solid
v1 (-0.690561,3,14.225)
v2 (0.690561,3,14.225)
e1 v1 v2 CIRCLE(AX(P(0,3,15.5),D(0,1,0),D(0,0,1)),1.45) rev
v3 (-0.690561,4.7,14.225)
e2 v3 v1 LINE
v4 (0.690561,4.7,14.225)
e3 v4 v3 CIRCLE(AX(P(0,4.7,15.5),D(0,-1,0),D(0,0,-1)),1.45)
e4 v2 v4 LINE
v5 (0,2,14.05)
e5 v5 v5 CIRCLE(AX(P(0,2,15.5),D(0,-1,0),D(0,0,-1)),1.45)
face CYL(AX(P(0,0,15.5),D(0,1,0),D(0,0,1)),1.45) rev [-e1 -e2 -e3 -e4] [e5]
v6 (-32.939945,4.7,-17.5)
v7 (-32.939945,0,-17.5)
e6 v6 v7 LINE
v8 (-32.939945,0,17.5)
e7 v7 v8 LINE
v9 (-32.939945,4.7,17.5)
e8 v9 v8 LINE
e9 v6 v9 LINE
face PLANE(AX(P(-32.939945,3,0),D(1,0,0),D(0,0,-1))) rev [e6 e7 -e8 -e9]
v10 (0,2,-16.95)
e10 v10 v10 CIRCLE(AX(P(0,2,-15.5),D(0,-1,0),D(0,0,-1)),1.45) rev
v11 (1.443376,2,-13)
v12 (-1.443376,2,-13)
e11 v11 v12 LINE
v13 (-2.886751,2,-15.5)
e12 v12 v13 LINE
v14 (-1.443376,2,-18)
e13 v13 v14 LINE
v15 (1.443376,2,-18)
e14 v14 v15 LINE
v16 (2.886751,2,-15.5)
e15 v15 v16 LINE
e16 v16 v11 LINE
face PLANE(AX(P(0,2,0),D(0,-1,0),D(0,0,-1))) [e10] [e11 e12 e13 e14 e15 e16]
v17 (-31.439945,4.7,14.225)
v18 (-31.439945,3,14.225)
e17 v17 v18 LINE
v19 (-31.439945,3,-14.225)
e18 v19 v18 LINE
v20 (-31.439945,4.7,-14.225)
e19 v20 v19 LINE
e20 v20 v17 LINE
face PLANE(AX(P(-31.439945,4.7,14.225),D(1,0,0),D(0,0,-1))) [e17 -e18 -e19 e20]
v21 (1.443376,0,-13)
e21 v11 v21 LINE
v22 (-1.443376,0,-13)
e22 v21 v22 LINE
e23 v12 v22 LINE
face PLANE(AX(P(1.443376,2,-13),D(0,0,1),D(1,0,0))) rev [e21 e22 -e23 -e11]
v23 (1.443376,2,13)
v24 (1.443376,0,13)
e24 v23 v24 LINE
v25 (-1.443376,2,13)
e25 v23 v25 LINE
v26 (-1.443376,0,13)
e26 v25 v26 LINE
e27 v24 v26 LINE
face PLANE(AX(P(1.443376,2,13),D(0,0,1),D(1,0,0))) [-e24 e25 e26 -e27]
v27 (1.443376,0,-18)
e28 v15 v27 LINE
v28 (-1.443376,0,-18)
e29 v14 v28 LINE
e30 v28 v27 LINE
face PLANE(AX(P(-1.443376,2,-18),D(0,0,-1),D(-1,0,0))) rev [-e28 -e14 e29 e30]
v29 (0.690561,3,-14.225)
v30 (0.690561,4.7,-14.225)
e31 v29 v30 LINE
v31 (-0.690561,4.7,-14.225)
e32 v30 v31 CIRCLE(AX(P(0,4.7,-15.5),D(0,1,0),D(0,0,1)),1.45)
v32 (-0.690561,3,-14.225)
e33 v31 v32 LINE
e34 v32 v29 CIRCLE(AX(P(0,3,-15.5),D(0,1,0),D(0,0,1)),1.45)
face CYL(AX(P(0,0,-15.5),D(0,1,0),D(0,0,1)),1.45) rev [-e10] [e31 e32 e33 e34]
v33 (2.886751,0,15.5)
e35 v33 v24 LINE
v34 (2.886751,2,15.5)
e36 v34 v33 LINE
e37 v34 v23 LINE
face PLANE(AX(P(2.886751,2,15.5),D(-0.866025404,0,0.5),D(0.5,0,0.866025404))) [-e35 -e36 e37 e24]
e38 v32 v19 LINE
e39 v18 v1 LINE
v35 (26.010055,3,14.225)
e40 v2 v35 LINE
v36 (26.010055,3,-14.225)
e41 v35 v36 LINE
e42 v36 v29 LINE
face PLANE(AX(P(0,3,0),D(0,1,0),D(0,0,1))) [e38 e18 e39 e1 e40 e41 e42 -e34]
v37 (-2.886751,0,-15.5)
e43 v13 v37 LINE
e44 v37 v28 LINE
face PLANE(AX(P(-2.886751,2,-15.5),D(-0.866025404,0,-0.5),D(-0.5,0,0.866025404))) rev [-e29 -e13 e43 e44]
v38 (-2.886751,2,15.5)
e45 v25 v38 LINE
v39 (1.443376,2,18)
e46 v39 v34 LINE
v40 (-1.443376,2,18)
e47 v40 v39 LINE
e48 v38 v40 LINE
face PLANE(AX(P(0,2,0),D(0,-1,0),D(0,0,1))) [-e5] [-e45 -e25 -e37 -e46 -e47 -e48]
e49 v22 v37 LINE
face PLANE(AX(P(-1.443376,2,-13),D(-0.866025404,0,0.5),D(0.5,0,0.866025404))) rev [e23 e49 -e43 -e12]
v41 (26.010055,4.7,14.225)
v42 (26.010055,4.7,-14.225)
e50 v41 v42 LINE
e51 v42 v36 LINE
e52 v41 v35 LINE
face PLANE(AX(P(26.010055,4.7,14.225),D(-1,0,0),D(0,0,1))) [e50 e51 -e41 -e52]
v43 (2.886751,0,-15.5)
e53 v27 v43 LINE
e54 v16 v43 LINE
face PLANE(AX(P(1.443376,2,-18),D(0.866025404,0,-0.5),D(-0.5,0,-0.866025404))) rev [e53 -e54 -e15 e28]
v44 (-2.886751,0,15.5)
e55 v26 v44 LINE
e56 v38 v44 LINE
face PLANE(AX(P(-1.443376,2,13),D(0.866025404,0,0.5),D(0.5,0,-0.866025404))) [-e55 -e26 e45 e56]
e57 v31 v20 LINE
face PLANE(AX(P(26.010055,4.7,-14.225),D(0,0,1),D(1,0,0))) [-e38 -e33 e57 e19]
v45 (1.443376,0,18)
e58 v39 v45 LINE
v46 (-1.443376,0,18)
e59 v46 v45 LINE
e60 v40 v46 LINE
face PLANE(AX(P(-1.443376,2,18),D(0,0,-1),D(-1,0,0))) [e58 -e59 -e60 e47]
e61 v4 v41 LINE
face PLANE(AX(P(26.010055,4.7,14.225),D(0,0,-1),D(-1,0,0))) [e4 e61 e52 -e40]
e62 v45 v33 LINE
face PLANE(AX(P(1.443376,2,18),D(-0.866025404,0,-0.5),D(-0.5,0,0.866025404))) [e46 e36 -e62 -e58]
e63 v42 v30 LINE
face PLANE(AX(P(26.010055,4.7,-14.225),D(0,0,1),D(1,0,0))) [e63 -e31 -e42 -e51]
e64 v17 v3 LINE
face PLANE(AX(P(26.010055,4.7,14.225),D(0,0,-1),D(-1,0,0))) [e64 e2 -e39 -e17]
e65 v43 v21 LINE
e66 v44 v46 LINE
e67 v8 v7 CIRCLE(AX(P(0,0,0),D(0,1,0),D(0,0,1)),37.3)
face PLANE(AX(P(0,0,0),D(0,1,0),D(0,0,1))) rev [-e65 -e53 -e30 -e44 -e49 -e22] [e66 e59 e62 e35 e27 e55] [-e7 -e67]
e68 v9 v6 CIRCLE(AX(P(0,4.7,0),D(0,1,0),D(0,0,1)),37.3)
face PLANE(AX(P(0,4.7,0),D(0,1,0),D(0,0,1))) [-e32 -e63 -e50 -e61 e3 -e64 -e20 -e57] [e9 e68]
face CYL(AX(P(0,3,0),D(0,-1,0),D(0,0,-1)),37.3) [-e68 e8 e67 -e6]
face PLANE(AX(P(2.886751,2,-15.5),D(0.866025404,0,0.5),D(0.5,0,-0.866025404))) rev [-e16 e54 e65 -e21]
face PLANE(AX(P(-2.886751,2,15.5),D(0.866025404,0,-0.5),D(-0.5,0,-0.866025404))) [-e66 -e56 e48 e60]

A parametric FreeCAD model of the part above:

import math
import FreeCAD as App
import Part
import Sketcher
Q = App.Units.Quantity

doc = App.newDocument("Part")
body = doc.addObject("PartDesign::Body", "Body")

# Sketch on XZ plane
sketch1 = body.newObject("Sketcher::SketchObject", "Sketch")
sketch1.AttachmentSupport = (doc.getObject("XZ_Plane"), [""])
sketch1.MapMode = "FlatFace"
sketch1.addGeometry(Part.LineSegment(App.Vector(-32.939945, -17.5, 0), App.Vector(-32.939945, 17.5, 0)), False)
sketch1.addGeometry(Part.ArcOfCircle(Part.Circle(App.Vector(0, 0, 0), App.Vector(0, 0, 1), 37.3), math.radians(-152.019638), math.radians(152.019638)), False)
sketch1.addConstraint(Sketcher.Constraint("Coincident", 0, 1, 1, 1))
sketch1.addConstraint(Sketcher.Constraint("Coincident", 1, 2, 0, 2))
sketch1.addConstraint(Sketcher.Constraint("Vertical", 0))
sketch1.addConstraint(Sketcher.Constraint("Coincident", 1, 3, -1, 1))
sketch1.addConstraint(Sketcher.Constraint("Radius", 1, 37.3))
sketch1.addConstraint(Sketcher.Constraint("DistanceY", 0, 1, 0, 2, 35.0))
pad1 = body.newObject("PartDesign::Pad", "Pad")
pad1.Profile = sketch1
pad1.Length = 3
pad1.Reversed = True

# Sketch on XZ plane
sketch2 = body.newObject("Sketcher::SketchObject", "Sketch001")
sketch2.AttachmentSupport = (doc.getObject("XZ_Plane"), [""])
sketch2.MapMode = "FlatFace"
sketch2.AttachmentOffset = App.Placement(App.Vector(0, 0, -3), App.Rotation())
sketch2.addGeometry(Part.LineSegment(App.Vector(-32.939945, -17.5, 0), App.Vector(-32.939945, 17.5, 0)), False)
sketch2.addGeometry(Part.ArcOfCircle(Part.Circle(App.Vector(0, 0, 0), App.Vector(0, 0, 1), 37.3), math.radians(-152.019638), math.radians(152.019638)), False)
sketch2.addGeometry(Part.LineSegment(App.Vector(26.010055, 14.225, 0), App.Vector(-31.439945, 14.225, 0)), False)
sketch2.addGeometry(Part.LineSegment(App.Vector(-31.439945, 14.225, 0), App.Vector(-31.439945, -14.225, 0)), False)
sketch2.addGeometry(Part.LineSegment(App.Vector(-31.439945, -14.225, 0), App.Vector(26.010055, -14.225, 0)), False)
sketch2.addGeometry(Part.LineSegment(App.Vector(26.010055, -14.225, 0), App.Vector(26.010055, 14.225, 0)), False)
sketch2.addConstraint(Sketcher.Constraint("Coincident", 0, 1, 1, 1))
sketch2.addConstraint(Sketcher.Constraint("Coincident", 1, 2, 0, 2))
sketch2.addConstraint(Sketcher.Constraint("Coincident", 2, 2, 3, 1))
sketch2.addConstraint(Sketcher.Constraint("Coincident", 3, 2, 4, 1))
sketch2.addConstraint(Sketcher.Constraint("Coincident", 4, 2, 5, 1))
sketch2.addConstraint(Sketcher.Constraint("Coincident", 5, 2, 2, 1))
sketch2.addConstraint(Sketcher.Constraint("Vertical", 0))
sketch2.addConstraint(Sketcher.Constraint("Horizontal", 2))
sketch2.addConstraint(Sketcher.Constraint("Vertical", 3))
sketch2.addConstraint(Sketcher.Constraint("Horizontal", 4))
sketch2.addConstraint(Sketcher.Constraint("Vertical", 5))
sketch2.addConstraint(Sketcher.Constraint("Coincident", 1, 3, -1, 1))
sketch2.addConstraint(Sketcher.Constraint("Radius", 1, 37.3))
sketch2.addConstraint(Sketcher.Constraint("DistanceY", 0, 1, 0, 2, 35.0))
sketch2.addConstraint(Sketcher.Constraint("DistanceX", 2, 2, 2, 1, 57.45))
sketch2.addConstraint(Sketcher.Constraint("DistanceY", 3, 2, 3, 1, 28.45))
sketch2.addConstraint(Sketcher.Constraint("DistanceX", 1, 2, 2, 2, 1.5))
sketch2.addConstraint(Sketcher.Constraint("DistanceY", -1, 1, 2, 2, 14.225))
pad2 = body.newObject("PartDesign::Pad", "Pad001")
pad2.Profile = sketch2
pad2.Length = 1.7
pad2.Reversed = True

# Sketch on XZ plane
sketch3 = body.newObject("Sketcher::SketchObject", "Sketch002")
sketch3.AttachmentSupport = (doc.getObject("XZ_Plane"), [""])
sketch3.MapMode = "FlatFace"
sketch3.AttachmentOffset = App.Placement(App.Vector(0, 0, -4.7), App.Rotation())
sketch3.addGeometry(Part.Circle(App.Vector(0, -15.5, 0), App.Vector(0, 0, 1), 1.45), False)
sketch3.addConstraint(Sketcher.Constraint("PointOnObject", 0, 3, -2))
sketch3.addConstraint(Sketcher.Constraint("Diameter", 0, 2.9))
sketch3.addConstraint(Sketcher.Constraint("DistanceY", 0, 3, -1, 1, 15.5))
pocket1 = body.newObject("PartDesign::Pocket", "Pocket")
pocket1.Profile = sketch3
pocket1.Type = "ThroughAll"
pocket1.Reversed = True

# Sketch on XZ plane
sketch4 = body.newObject("Sketcher::SketchObject", "Sketch003")
sketch4.AttachmentSupport = (doc.getObject("XZ_Plane"), [""])
sketch4.MapMode = "FlatFace"
sketch4.addGeometry(Part.LineSegment(App.Vector(2.886751, -15.5, 0), App.Vector(1.443376, -13, 0)), False)
sketch4.addGeometry(Part.LineSegment(App.Vector(1.443376, -13, 0), App.Vector(-1.443376, -13, 0)), False)
sketch4.addGeometry(Part.LineSegment(App.Vector(-1.443376, -13, 0), App.Vector(-2.886751, -15.5, 0)), False)
sketch4.addGeometry(Part.LineSegment(App.Vector(-2.886751, -15.5, 0), App.Vector(-1.443376, -18, 0)), False)
sketch4.addGeometry(Part.LineSegment(App.Vector(-1.443376, -18, 0), App.Vector(1.443376, -18, 0)), False)
sketch4.addGeometry(Part.LineSegment(App.Vector(1.443376, -18, 0), App.Vector(2.886751, -15.5, 0)), False)
sketch4.addConstraint(Sketcher.Constraint("Coincident", 0, 2, 1, 1))
sketch4.addConstraint(Sketcher.Constraint("Coincident", 1, 2, 2, 1))
sketch4.addConstraint(Sketcher.Constraint("Coincident", 2, 2, 3, 1))
sketch4.addConstraint(Sketcher.Constraint("Coincident", 3, 2, 4, 1))
sketch4.addConstraint(Sketcher.Constraint("Coincident", 4, 2, 5, 1))
sketch4.addConstraint(Sketcher.Constraint("Coincident", 5, 2, 0, 1))
sketch4.addConstraint(Sketcher.Constraint("Horizontal", 1))
sketch4.addConstraint(Sketcher.Constraint("Horizontal", 4))
sketch4.addConstraint(Sketcher.Constraint("Symmetric", 2, 2, 5, 2, -2))
sketch4.addConstraint(Sketcher.Constraint("Parallel", 0, 3))
sketch4.addConstraint(Sketcher.Constraint("Parallel", 2, 5))
sketch4.addConstraint(Sketcher.Constraint("Vertical", 1, 2, 3, 2))
sketch4.addConstraint(Sketcher.Constraint("Vertical", 0, 2, 4, 2))
sketch4.addConstraint(Sketcher.Constraint("Angle", 0, Q("120 deg")))
sketch4.addConstraint(Sketcher.Constraint("DistanceY", 0, 2, -1, 1, 13.0))
sketch4.addConstraint(Sketcher.Constraint("DistanceY", 3, 2, -1, 1, 18.0))
sketch4.addConstraint(Sketcher.Constraint("DistanceX", 1, 2, 1, 1, 2.886751))
pocket2 = body.newObject("PartDesign::Pocket", "Pocket001")
pocket2.Profile = sketch4
pocket2.Length = 2
doc.recompute()

mirrored = body.newObject("PartDesign::Mirrored", "Mirrored")
mirrored.Originals = [pocket1, pocket2]
mirrored.MirrorPlane = (doc.getObject("XY_Plane"), [""])
body.Tip = mirrored

doc.recompute()
